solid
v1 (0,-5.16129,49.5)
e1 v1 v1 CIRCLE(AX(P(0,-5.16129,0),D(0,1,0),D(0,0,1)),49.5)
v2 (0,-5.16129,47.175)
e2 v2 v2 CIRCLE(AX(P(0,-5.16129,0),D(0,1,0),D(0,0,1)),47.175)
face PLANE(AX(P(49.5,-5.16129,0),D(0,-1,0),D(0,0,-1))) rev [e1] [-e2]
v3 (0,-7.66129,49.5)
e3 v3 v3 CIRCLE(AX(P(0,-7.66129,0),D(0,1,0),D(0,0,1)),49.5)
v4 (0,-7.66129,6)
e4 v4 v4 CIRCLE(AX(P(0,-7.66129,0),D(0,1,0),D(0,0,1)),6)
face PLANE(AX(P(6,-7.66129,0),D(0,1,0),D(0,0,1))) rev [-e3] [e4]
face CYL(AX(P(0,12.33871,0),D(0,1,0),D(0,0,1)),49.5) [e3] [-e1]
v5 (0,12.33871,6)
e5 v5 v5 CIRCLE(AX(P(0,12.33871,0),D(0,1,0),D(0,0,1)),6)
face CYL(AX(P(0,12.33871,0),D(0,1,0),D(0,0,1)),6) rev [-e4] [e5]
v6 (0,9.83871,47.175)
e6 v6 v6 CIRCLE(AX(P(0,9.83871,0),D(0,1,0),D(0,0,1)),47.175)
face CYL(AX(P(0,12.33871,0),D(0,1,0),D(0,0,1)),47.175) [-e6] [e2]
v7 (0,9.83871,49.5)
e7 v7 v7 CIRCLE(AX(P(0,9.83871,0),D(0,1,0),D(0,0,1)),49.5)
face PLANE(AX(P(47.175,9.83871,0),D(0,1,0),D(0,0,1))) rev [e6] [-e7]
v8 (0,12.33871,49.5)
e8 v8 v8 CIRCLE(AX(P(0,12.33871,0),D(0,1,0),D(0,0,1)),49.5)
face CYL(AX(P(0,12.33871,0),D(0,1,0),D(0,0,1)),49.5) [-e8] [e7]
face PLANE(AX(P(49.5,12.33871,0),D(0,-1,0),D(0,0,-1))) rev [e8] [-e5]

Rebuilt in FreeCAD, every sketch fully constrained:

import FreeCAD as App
import Part
import Sketcher
Q = App.Units.Quantity

doc = App.newDocument("Part")
body = doc.addObject("PartDesign::Body", "Body")

# Sketch on XY plane
sketch1 = body.newObject("Sketcher::SketchObject", "Sketch")
sketch1.AttachmentSupport = (doc.getObject("XY_Plane"), [""])
sketch1.MapMode = "FlatFace"
sketch1.addGeometry(Part.LineSegment(App.Vector(6, -7.66129, 0), App.Vector(49.5, -7.66129, 0)), False)
sketch1.addGeometry(Part.LineSegment(App.Vector(49.5, -7.66129, 0), App.Vector(49.5, -5.16129, 0)), False)
sketch1.addGeometry(Part.LineSegment(App.Vector(49.5, -5.16129, 0), App.Vector(47.175, -5.16129, 0)), False)
sketch1.addGeometry(Part.LineSegment(App.Vector(47.175, -5.16129, 0), App.Vector(47.175, 9.83871, 0)), False)
sketch1.addGeometry(Part.LineSegment(App.Vector(47.175, 9.83871, 0), App.Vector(49.5, 9.83871, 0)), False)
sketch1.addGeometry(Part.LineSegment(App.Vector(49.5, 9.83871, 0), App.Vector(49.5, 12.33871, 0)), False)
sketch1.addGeometry(Part.LineSegment(App.Vector(49.5, 12.33871, 0), App.Vector(6, 12.33871, 0)), False)
sketch1.addGeometry(Part.LineSegment(App.Vector(6, 12.33871, 0), App.Vector(6, -7.66129, 0)), False)
sketch1.addConstraint(Sketcher.Constraint("Coincident", 0, 2, 1, 1))
sketch1.addConstraint(Sketcher.Constraint("Coincident", 1, 2, 2, 1))
sketch1.addConstraint(Sketcher.Constraint("Coincident", 2, 2, 3, 1))
sketch1.addConstraint(Sketcher.Constraint("Coincident", 3, 2, 4, 1))
sketch1.addConstraint(Sketcher.Constraint("Coincident", 4, 2, 5, 1))
sketch1.addConstraint(Sketcher.Constraint("Coincident", 5, 2, 6, 1))
sketch1.addConstraint(Sketcher.Constraint("Coincident", 6, 2, 7, 1))
sketch1.addConstraint(Sketcher.Constraint("Coincident", 7, 2, 0, 1))
sketch1.addConstraint(Sketcher.Constraint("Horizontal", 0))
sketch1.addConstraint(Sketcher.Constraint("Vertical", 1))
sketch1.addConstraint(Sketcher.Constraint("Horizontal", 2))
sketch1.addConstraint(Sketcher.Constraint("Vertical", 3))
sketch1.addConstraint(Sketcher.Constraint("Horizontal", 4))
sketch1.addConstraint(Sketcher.Constraint("Vertical", 5))
sketch1.addConstraint(Sketcher.Constraint("Horizontal", 6))
sketch1.addConstraint(Sketcher.Constraint("Vertical", 7))
sketch1.addConstraint(Sketcher.Constraint("Vertical", 1, 2, 4, 2))
sketch1.addConstraint(Sketcher.Constraint("Equal", 1, 5))
sketch1.addConstraint(Sketcher.Constraint("DistanceY", 3, 1, 3, 2, Q("15 mm")))
sketch1.addConstraint(Sketcher.Constraint("DistanceY", 7, 2, 7, 1, Q("20 mm")))
sketch1.addConstraint(Sketcher.Constraint("DistanceX", 0, 1, 0, 2, Q("43.5 mm")))
sketch1.addConstraint(Sketcher.Constraint("DistanceX", -1, 1, 6, 2, Q("6 mm")))
sketch1.addConstraint(Sketcher.Constraint("DistanceX", 2, 2, 2, 1, Q("2.325 mm")))
sketch1.addConstraint(Sketcher.Constraint("DistanceY", 0, 2, -1, 1, Q("7.66129 mm")))
revolution = body.newObject("PartDesign::Revolution", "Revolution")
revolution.Profile = sketch1
revolution.ReferenceAxis = (sketch1, ["V_Axis"])
revolution.Angle = 360

doc.recompute()
